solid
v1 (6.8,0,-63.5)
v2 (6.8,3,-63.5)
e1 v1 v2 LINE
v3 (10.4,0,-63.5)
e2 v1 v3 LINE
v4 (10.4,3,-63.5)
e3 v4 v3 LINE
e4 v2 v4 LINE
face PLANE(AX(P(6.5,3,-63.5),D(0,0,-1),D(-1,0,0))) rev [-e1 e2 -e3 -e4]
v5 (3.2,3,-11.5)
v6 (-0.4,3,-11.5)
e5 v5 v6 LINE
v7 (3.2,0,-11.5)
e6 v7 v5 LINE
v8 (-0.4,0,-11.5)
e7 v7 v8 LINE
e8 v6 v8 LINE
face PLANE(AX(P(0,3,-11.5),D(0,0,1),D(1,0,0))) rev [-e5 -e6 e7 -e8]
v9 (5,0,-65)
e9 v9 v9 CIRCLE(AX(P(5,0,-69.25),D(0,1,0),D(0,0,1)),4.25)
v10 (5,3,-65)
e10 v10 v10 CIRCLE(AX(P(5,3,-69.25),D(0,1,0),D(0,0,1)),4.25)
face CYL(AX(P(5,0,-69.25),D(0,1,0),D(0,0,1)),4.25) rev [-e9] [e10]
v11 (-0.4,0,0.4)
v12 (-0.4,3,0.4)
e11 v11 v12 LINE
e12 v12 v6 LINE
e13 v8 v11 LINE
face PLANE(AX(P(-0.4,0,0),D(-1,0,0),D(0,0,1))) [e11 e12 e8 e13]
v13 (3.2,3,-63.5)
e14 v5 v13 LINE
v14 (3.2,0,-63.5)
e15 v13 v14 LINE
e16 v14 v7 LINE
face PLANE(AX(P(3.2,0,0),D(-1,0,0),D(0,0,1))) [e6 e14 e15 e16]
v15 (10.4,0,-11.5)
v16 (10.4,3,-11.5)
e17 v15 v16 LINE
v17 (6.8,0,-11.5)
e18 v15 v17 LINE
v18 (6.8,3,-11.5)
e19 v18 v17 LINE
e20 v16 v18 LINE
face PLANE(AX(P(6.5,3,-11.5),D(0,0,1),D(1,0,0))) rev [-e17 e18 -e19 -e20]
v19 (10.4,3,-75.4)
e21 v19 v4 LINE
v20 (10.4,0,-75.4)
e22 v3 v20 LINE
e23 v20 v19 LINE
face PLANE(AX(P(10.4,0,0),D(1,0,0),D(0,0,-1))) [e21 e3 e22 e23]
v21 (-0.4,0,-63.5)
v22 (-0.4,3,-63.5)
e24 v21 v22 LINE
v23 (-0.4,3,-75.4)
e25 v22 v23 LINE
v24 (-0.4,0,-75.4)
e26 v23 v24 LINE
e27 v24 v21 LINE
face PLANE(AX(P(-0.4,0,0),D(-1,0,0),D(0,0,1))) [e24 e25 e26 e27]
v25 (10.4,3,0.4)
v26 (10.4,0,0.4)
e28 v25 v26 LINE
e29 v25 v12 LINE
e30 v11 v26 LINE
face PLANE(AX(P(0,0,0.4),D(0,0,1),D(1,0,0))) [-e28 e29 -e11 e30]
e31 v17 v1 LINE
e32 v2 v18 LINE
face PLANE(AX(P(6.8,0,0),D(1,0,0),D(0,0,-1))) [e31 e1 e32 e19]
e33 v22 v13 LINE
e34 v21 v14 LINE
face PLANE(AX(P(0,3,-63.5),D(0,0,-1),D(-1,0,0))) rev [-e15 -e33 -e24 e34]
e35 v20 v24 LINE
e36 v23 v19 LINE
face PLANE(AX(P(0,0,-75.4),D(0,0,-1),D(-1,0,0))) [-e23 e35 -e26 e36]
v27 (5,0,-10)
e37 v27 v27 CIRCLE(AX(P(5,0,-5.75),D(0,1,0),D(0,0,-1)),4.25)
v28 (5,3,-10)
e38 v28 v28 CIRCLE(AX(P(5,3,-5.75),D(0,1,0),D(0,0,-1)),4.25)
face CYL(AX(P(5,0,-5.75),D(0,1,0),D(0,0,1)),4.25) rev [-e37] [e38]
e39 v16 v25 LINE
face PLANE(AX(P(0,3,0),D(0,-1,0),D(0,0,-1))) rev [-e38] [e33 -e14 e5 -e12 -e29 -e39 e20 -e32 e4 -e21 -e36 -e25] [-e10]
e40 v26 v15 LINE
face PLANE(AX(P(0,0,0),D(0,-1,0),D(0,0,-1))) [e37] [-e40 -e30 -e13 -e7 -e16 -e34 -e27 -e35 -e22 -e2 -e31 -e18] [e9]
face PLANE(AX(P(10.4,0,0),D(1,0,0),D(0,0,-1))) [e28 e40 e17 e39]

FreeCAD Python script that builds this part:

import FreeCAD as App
import Part
import Sketcher
from FreeCAD import Vector

doc = App.newDocument("Part")
body = doc.addObject("PartDesign::Body", "Body")

sketch1 = doc.addObject("Sketcher::SketchObject", "Sketch")
body.addObject(sketch1)
sketch1.AttachmentSupport = (doc.XZ_Plane, [""])
sketch1.MapMode = "FlatFace"
sketch1.addGeometry(Part.LineSegment(Vector(3.5, -11.5, 0), Vector(0, -11.5, 0)), False)
sketch1.addGeometry(Part.LineSegment(Vector(0, -11.5, 0), Vector(0, 0, 0)), False)
sketch1.addGeometry(Part.LineSegment(Vector(0, 0, 0), Vector(10, 0, 0)), False)
sketch1.addGeometry(Part.LineSegment(Vector(10, 0, 0), Vector(10, -11.5, 0)), False)
sketch1.addGeometry(Part.LineSegment(Vector(10, -11.5, 0), Vector(6.5, -11.5, 0)), False)
sketch1.addGeometry(Part.LineSegment(Vector(6.5, -11.5, 0), Vector(6.5, -63.5, 0)), False)
sketch1.addGeometry(Part.LineSegment(Vector(6.5, -63.5, 0), Vector(10, -63.5, 0)), False)
sketch1.addGeometry(Part.LineSegment(Vector(10, -63.5, 0), Vector(10, -75, 0)), False)
sketch1.addGeometry(Part.LineSegment(Vector(10, -75, 0), Vector(0, -75, 0)), False)
sketch1.addGeometry(Part.LineSegment(Vector(0, -75, 0), Vector(0, -63.5, 0)), False)
sketch1.addGeometry(Part.LineSegment(Vector(0, -63.5, 0), Vector(3.5, -63.5, 0)), False)
sketch1.addGeometry(Part.LineSegment(Vector(3.5, -63.5, 0), Vector(3.5, -11.5, 0)), False)
sketch1.addConstraint(Sketcher.Constraint("Coincident", 0, 2, 1, 1))
sketch1.addConstraint(Sketcher.Constraint("Coincident", 1, 2, 2, 1))
sketch1.addConstraint(Sketcher.Constraint("Coincident", 2, 2, 3, 1))
sketch1.addConstraint(Sketcher.Constraint("Coincident", 3, 2, 4, 1))
sketch1.addConstraint(Sketcher.Constraint("Coincident", 4, 2, 5, 1))
sketch1.addConstraint(Sketcher.Constraint("Coincident", 5, 2, 6, 1))
sketch1.addConstraint(Sketcher.Constraint("Coincident", 6, 2, 7, 1))
sketch1.addConstraint(Sketcher.Constraint("Coincident", 7, 2, 8, 1))
sketch1.addConstraint(Sketcher.Constraint("Coincident", 8, 2, 9, 1))
sketch1.addConstraint(Sketcher.Constraint("Coincident", 9, 2, 10, 1))
sketch1.addConstraint(Sketcher.Constraint("Coincident", 10, 2, 11, 1))
sketch1.addConstraint(Sketcher.Constraint("Coincident", 11, 2, 0, 1))
sketch1.addConstraint(Sketcher.Constraint("Horizontal", 0))
sketch1.addConstraint(Sketcher.Constraint("Vertical", 1))
sketch1.addConstraint(Sketcher.Constraint("Horizontal", 2))
sketch1.addConstraint(Sketcher.Constraint("Vertical", 3))
sketch1.addConstraint(Sketcher.Constraint("Horizontal", 4))
sketch1.addConstraint(Sketcher.Constraint("Vertical", 5))
sketch1.addConstraint(Sketcher.Constraint("Horizontal", 6))
sketch1.addConstraint(Sketcher.Constraint("Vertical", 7))
sketch1.addConstraint(Sketcher.Constraint("Horizontal", 8))
sketch1.addConstraint(Sketcher.Constraint("Vertical", 9))
sketch1.addConstraint(Sketcher.Constraint("Horizontal", 10))
sketch1.addConstraint(Sketcher.Constraint("Vertical", 11))
sketch1.addConstraint(Sketcher.Constraint("Coincident", 1, 2, -1, 1))
sketch1.addConstraint(Sketcher.Constraint("PointOnObject", 8, 2, -2))
sketch1.addConstraint(Sketcher.Constraint("Horizontal", 0, 2, 3, 2))
sketch1.addConstraint(Sketcher.Constraint("Horizontal", 6, 2, 9, 2))
sketch1.addConstraint(Sketcher.Constraint("Vertical", 3, 2, 6, 2))
sketch1.addConstraint(Sketcher.Constraint("Equal", 0, 4))
sketch1.addConstraint(Sketcher.Constraint("Equal", 3, 7))
sketch1.addConstraint(Sketcher.Constraint("DistanceX", 2, 1, 2, 2, 10.0))
sketch1.addConstraint(Sketcher.Constraint("DistanceY", 5, 2, 5, 1, 52.0))
sketch1.addConstraint(Sketcher.Constraint("DistanceX", 0, 2, 0, 1, 3.5))
sketch1.addConstraint(Sketcher.Constraint("DistanceY", 1, 1, 1, 2, 11.5))
pad1 = doc.addObject("PartDesign::Pad", "Pad")
body.addObject(pad1)
pad1.Profile = sketch1
pad1.Length = 3
pad1.Reversed = True

sketch2 = doc.addObject("Sketcher::SketchObject", "Sketch001")
body.addObject(sketch2)
sketch2.AttachmentSupport = (doc.XZ_Plane, [""])
sketch2.MapMode = "FlatFace"
sketch2.AttachmentOffset = App.Placement(Vector(0, 0, -3), App.Rotation())
sketch2.addGeometry(Part.Circle(Vector(5, -69.2, 0), Vector(0, 0, 1), 4.2), False)
sketch2.addGeometry(Part.Circle(Vector(5, -5.8, 0), Vector(0, 0, 1), 4.2), False)
sketch2.addConstraint(Sketcher.Constraint("Equal", 0, 1))
sketch2.addConstraint(Sketcher.Constraint("Vertical", 0, 3, 1, 3))
sketch2.addConstraint(Sketcher.Constraint("Diameter", 0, 8.5))
sketch2.addConstraint(Sketcher.Constraint("DistanceX", -1, 1, 0, 3, 5.0))
sketch2.addConstraint(Sketcher.Constraint("DistanceY", 0, 3, 1, 3, 63.5))
sketch2.addConstraint(Sketcher.Constraint("DistanceY", 0, 3, -1, 1, 69.25))
pocket1 = doc.addObject("PartDesign::Pocket", "Pocket")
body.addObject(pocket1)
pocket1.Profile = sketch2
pocket1.Length = 3
pocket1.Reversed = True

sketch3 = doc.addObject("Sketcher::SketchObject", "Sketch002")
body.addObject(sketch3)
sketch3.AttachmentSupport = (doc.XY_Plane, [""])
sketch3.MapMode = "FlatFace"
sketch3.addGeometry(Part.LineSegment(Vector(0, 3, 0), Vector(0, 0, 0)), False)
sketch3.addGeometry(Part.LineSegment(Vector(0, 0, 0), Vector(10, 0, 0)), False)
sketch3.addGeometry(Part.LineSegment(Vector(10, 0, 0), Vector(10, 3, 0)), False)
sketch3.addGeometry(Part.LineSegment(Vector(10, 3, 0), Vector(0, 3, 0)), False)
sketch3.addConstraint(Sketcher.Constraint("Coincident", 0, 2, 1, 1))
sketch3.addConstraint(Sketcher.Constraint("Coincident", 1, 2, 2, 1))
sketch3.addConstraint(Sketcher.Constraint("Coincident", 2, 2, 3, 1))
sketch3.addConstraint(Sketcher.Constraint("Coincident", 3, 2, 0, 1))
sketch3.addConstraint(Sketcher.Constraint("Vertical", 0))
sketch3.addConstraint(Sketcher.Constraint("Horizontal", 1))
sketch3.addConstraint(Sketcher.Constraint("Vertical", 2))
sketch3.addConstraint(Sketcher.Constraint("Horizontal", 3))
sketch3.addConstraint(Sketcher.Constraint("Coincident", 0, 2, -1, 1))
sketch3.addConstraint(Sketcher.Constraint("DistanceX", 1, 1, 1, 2, 10.0))
sketch3.addConstraint(Sketcher.Constraint("DistanceY", 0, 2, 0, 1, 3.0))
pad2 = doc.addObject("PartDesign::Pad", "Pad001")
body.addObject(pad2)
pad2.Profile = sketch3
pad2.Length = 0.4

sketch4 = doc.addObject("Sketcher::SketchObject", "Sketch003")
body.addObject(sketch4)
sketch4.AttachmentSupport = (doc.XY_Plane, [""])
sketch4.MapMode = "FlatFace"
sketch4.AttachmentOffset = App.Placement(Vector(0, 0, -75), App.Rotation())
sketch4.addGeometry(Part.LineSegment(Vector(10, 3, 0), Vector(10, 0, 0)), False)
sketch4.addGeometry(Part.LineSegment(Vector(10, 0, 0), Vector(0, 0, 0)), False)
sketch4.addGeometry(Part.LineSegment(Vector(0, 0, 0), Vector(0, 3, 0)), False)
sketch4.addGeometry(Part.LineSegment(Vector(0, 3, 0), Vector(10, 3, 0)), False)
sketch4.addConstraint(Sketcher.Constraint("Coincident", 0, 2, 1, 1))
sketch4.addConstraint(Sketcher.Constraint("Coincident", 1, 2, 2, 1))
sketch4.addConstraint(Sketcher.Constraint("Coincident", 2, 2, 3, 1))
sketch4.addConstraint(Sketcher.Constraint("Coincident", 3, 2, 0, 1))
sketch4.addConstraint(Sketcher.Constraint("Vertical", 0))
sketch4.addConstraint(Sketcher.Constraint("Horizontal", 1))
sketch4.addConstraint(Sketcher.Constraint("Vertical", 2))
sketch4.addConstraint(Sketcher.Constraint("Horizontal", 3))
sketch4.addConstraint(Sketcher.Constraint("Coincident", 1, 2, -1, 1))
sketch4.addConstraint(Sketcher.Constraint("DistanceX", 1, 2, 1, 1, 10.0))
sketch4.addConstraint(Sketcher.Constraint("DistanceY", 0, 2, 0, 1, 3.0))
pad3 = doc.addObject("PartDesign::Pad", "Pad002")
body.addObject(pad3)
pad3.Profile = sketch4
pad3.Length = 0.4
pad3.Reversed = True

sketch5 = doc.addObject("Sketcher::SketchObject", "Sketch004")
body.addObject(sketch5)
sketch5.AttachmentSupport = (doc.YZ_Plane, [""])
sketch5.MapMode = "FlatFace"
sketch5.AttachmentOffset = App.Placement(Vector(0, 0, 10), App.Rotation())
sketch5.addGeometry(Part.LineSegment(Vector(3, -63.5, 0), Vector(0, -63.5, 0)), False)
sketch5.addGeometry(Part.LineSegment(Vector(0, -63.5, 0), Vector(0, -75.4, 0)), False)
sketch5.addGeometry(Part.LineSegment(Vector(0, -75.4, 0), Vector(3, -75.4, 0)), False)
sketch5.addGeometry(Part.LineSegment(Vector(3, -75.4, 0), Vector(3, -63.5, 0)), False)
sketch5.addGeometry(Part.LineSegment(Vector(3, 0.4, 0), Vector(0, 0.4, 0)), False)
sketch5.addGeometry(Part.LineSegment(Vector(0, 0.4, 0), Vector(0, -11.5, 0)), False)
sketch5.addGeometry(Part.LineSegment(Vector(0, -11.5, 0), Vector(3, -11.5, 0)), False)
sketch5.addGeometry(Part.LineSegment(Vector(3, -11.5, 0), Vector(3, 0.4, 0)), False)
sketch5.addConstraint(Sketcher.Constraint("Coincident", 0, 2, 1, 1))
sketch5.addConstraint(Sketcher.Constraint("Coincident", 1, 2, 2, 1))
sketch5.addConstraint(Sketcher.Constraint("Coincident", 2, 2, 3, 1))
sketch5.addConstraint(Sketcher.Constraint("Coincident", 3, 2, 0, 1))
sketch5.addConstraint(Sketcher.Constraint("Coincident", 4, 2, 5, 1))
sketch5.addConstraint(Sketcher.Constraint("Coincident", 5, 2, 6, 1))
sketch5.addConstraint(Sketcher.Constraint("Coincident", 6, 2, 7, 1))
sketch5.addConstraint(Sketcher.Constraint("Coincident", 7, 2, 4, 1))
sketch5.addConstraint(Sketcher.Constraint("Horizontal", 0))
sketch5.addConstraint(Sketcher.Constraint("Vertical", 1))
sketch5.addConstraint(Sketcher.Constraint("Horizontal", 2))
sketch5.addConstraint(Sketcher.Constraint("Vertical", 3))
sketch5.addConstraint(Sketcher.Constraint("Horizontal", 4))
sketch5.addConstraint(Sketcher.Constraint("Vertical", 5))
sketch5.addConstraint(Sketcher.Constraint("Horizontal", 6))
sketch5.addConstraint(Sketcher.Constraint("Vertical", 7))
sketch5.addConstraint(Sketcher.Constraint("PointOnObject", 0, 2, -2))
sketch5.addConstraint(Sketcher.Constraint("PointOnObject", 4, 2, -2))
sketch5.addConstraint(Sketcher.Constraint("Vertical", 3, 2, 6, 2))
sketch5.addConstraint(Sketcher.Constraint("Equal", 3, 5))
sketch5.addConstraint(Sketcher.Constraint("DistanceX", 0, 2, 0, 1, 3.0))
sketch5.addConstraint(Sketcher.Constraint("DistanceY", 1, 2, 1, 1, 11.9))
sketch5.addConstraint(Sketcher.Constraint("DistanceY", 0, 2, 5, 2, 52.0))
sketch5.addConstraint(Sketcher.Constraint("DistanceY", 0, 2, -1, 1, 63.5))
pad4 = doc.addObject("PartDesign::Pad", "Pad003")
body.addObject(pad4)
pad4.Profile = sketch5
pad4.Length = 0.4

sketch6 = doc.addObject("Sketcher::SketchObject", "Sketch005")
body.addObject(sketch6)
sketch6.AttachmentSupport = (doc.YZ_Plane, [""])
sketch6.MapMode = "FlatFace"
sketch6.AttachmentOffset = App.Placement(Vector(0, 0, 6.5), App.Rotation())
sketch6.addGeometry(Part.LineSegment(Vector(3, -11.5, 0), Vector(0, -11.5, 0)), False)
sketch6.addGeometry(Part.LineSegment(Vector(0, -11.5, 0), Vector(0, -63.5, 0)), False)
sketch6.addGeometry(Part.LineSegment(Vector(0, -63.5, 0), Vector(3, -63.5, 0)), False)
sketch6.addGeometry(Part.LineSegment(Vector(3, -63.5, 0), Vector(3, -11.5, 0)), False)
sketch6.addConstraint(Sketcher.Constraint("Coincident", 0, 2, 1, 1))
sketch6.addConstraint(Sketcher.Constraint("Coincident", 1, 2, 2, 1))
sketch6.addConstraint(Sketcher.Constraint("Coincident", 2, 2, 3, 1))
sketch6.addConstraint(Sketcher.Constraint("Coincident", 3, 2, 0, 1))
sketch6.addConstraint(Sketcher.Constraint("Horizontal", 0))
sketch6.addConstraint(Sketcher.Constraint("Vertical", 1))
sketch6.addConstraint(Sketcher.Constraint("Horizontal", 2))
sketch6.addConstraint(Sketcher.Constraint("Vertical", 3))
sketch6.addConstraint(Sketcher.Constraint("PointOnObject", 0, 2, -2))
sketch6.addConstraint(Sketcher.Constraint("DistanceX", 0, 2, 0, 1, 3.0))
sketch6.addConstraint(Sketcher.Constraint("DistanceY", 1, 2, 1, 1, 52.0))
sketch6.addConstraint(Sketcher.Constraint("DistanceY", 0, 2, -1, 1, 11.5))
pad5 = doc.addObject("PartDesign::Pad", "Pad004")
body.addObject(pad5)
pad5.Profile = sketch6
pad5.Length = 0.4

sketch7 = doc.addObject("Sketcher::SketchObject", "Sketch006")
body.addObject(sketch7)
sketch7.AttachmentSupport = (doc.YZ_Plane, [""])
sketch7.MapMode = "FlatFace"
sketch7.addGeometry(Part.LineSegment(Vector(3, -11.5, 0), Vector(0, -11.5, 0)), False)
sketch7.addGeometry(Part.LineSegment(Vector(0, -11.5, 0), Vector(0, 0.4, 0)), False)
sketch7.addGeometry(Part.LineSegment(Vector(0, 0.4, 0), Vector(3, 0.4, 0)), False)
sketch7.addGeometry(Part.LineSegment(Vector(3, 0.4, 0), Vector(3, -11.5, 0)), False)
sketch7.addGeometry(Part.LineSegment(Vector(3, -75.4, 0), Vector(0, -75.4, 0)), False)
sketch7.addGeometry(Part.LineSegment(Vector(0, -75.4, 0), Vector(0, -63.5, 0)), False)
sketch7.addGeometry(Part.LineSegment(Vector(0, -63.5, 0), Vector(3, -63.5, 0)), False)
sketch7.addGeometry(Part.LineSegment(Vector(3, -63.5, 0), Vector(3, -75.4, 0)), False)
sketch7.addConstraint(Sketcher.Constraint("Coincident", 0, 2, 1, 1))
sketch7.addConstraint(Sketcher.Constraint("Coincident", 1, 2, 2, 1))
sketch7.addConstraint(Sketcher.Constraint("Coincident", 2, 2, 3, 1))
sketch7.addConstraint(Sketcher.Constraint("Coincident", 3, 2, 0, 1))
sketch7.addConstraint(Sketcher.Constraint("Coincident", 4, 2, 5, 1))
sketch7.addConstraint(Sketcher.Constraint("Coincident", 5, 2, 6, 1))
sketch7.addConstraint(Sketcher.Constraint("Coincident", 6, 2, 7, 1))
sketch7.addConstraint(Sketcher.Constraint("Coincident", 7, 2, 4, 1))
sketch7.addConstraint(Sketcher.Constraint("Horizontal", 0))
sketch7.addConstraint(Sketcher.Constraint("Vertical", 1))
sketch7.addConstraint(Sketcher.Constraint("Horizontal", 2))
sketch7.addConstraint(Sketcher.Constraint("Vertical", 3))
sketch7.addConstraint(Sketcher.Constraint("Horizontal", 4))
sketch7.addConstraint(Sketcher.Constraint("Vertical", 5))
sketch7.addConstraint(Sketcher.Constraint("Horizontal", 6))
sketch7.addConstraint(Sketcher.Constraint("Vertical", 7))
sketch7.addConstraint(Sketcher.Constraint("PointOnObject", 0, 2, -2))
sketch7.addConstraint(Sketcher.Constraint("PointOnObject", 4, 2, -2))
sketch7.addConstraint(Sketcher.Constraint("Vertical", 3, 2, 6, 2))
sketch7.addConstraint(Sketcher.Constraint("Equal", 3, 5))
sketch7.addConstraint(Sketcher.Constraint("DistanceX", 0, 2, 0, 1, 3.0))
sketch7.addConstraint(Sketcher.Constraint("DistanceY", 1, 1, 1, 2, 11.9))
sketch7.addConstraint(Sketcher.Constraint("DistanceY", 5, 2, 0, 2, 52.0))
sketch7.addConstraint(Sketcher.Constraint("DistanceY", 0, 2, -1, 1, 11.5))
pad6 = doc.addObject("PartDesign::Pad", "Pad005")
body.addObject(pad6)
pad6.Profile = sketch7
pad6.Length = 0.4
pad6.Reversed = True

sketch8 = doc.addObject("Sketcher::SketchObject", "Sketch007")
body.addObject(sketch8)
sketch8.AttachmentSupport = (doc.YZ_Plane, [""])
sketch8.MapMode = "FlatFace"
sketch8.AttachmentOffset = App.Placement(Vector(0, 0, 3.5), App.Rotation())
sketch8.addGeometry(Part.LineSegment(Vector(3, -63.5, 0), Vector(0, -63.5, 0)), False)
sketch8.addGeometry(Part.LineSegment(Vector(0, -63.5, 0), Vector(0, -11.5, 0)), False)
sketch8.addGeometry(Part.LineSegment(Vector(0, -11.5, 0), Vector(3, -11.5, 0)), False)
sketch8.addGeometry(Part.LineSegment(Vector(3, -11.5, 0), Vector(3, -63.5, 0)), False)
sketch8.addConstraint(Sketcher.Constraint("Coincident", 0, 2, 1, 1))
sketch8.addConstraint(Sketcher.Constraint("Coincident", 1, 2, 2, 1))
sketch8.addConstraint(Sketcher.Constraint("Coincident", 2, 2, 3, 1))
sketch8.addConstraint(Sketcher.Constraint("Coincident", 3, 2, 0, 1))
sketch8.addConstraint(Sketcher.Constraint("Horizontal", 0))
sketch8.addConstraint(Sketcher.Constraint("Vertical", 1))
sketch8.addConstraint(Sketcher.Constraint("Horizontal", 2))
sketch8.addConstraint(Sketcher.Constraint("Vertical", 3))
sketch8.addConstraint(Sketcher.Constraint("PointOnObject", 0, 2, -2))
sketch8.addConstraint(Sketcher.Constraint("DistanceX", 0, 2, 0, 1, 3.0))
sketch8.addConstraint(Sketcher.Constraint("DistanceY", 1, 1, 1, 2, 52.0))
sketch8.addConstraint(Sketcher.Constraint("DistanceY", 0, 2, -1, 1, 63.5))
pad7 = doc.addObject("PartDesign::Pad", "Pad006")
body.addObject(pad7)
pad7.Profile = sketch8
pad7.Length = 0.4
pad7.Reversed = True

sketch9 = doc.addObject("Sketcher::SketchObject", "Sketch008")
body.addObject(sketch9)
sketch9.AttachmentSupport = (doc.YZ_Plane, [""])
sketch9.MapMode = "FlatFace"
sketch9.AttachmentOffset = App.Placement(Vector(0, 0, 3.1), App.Rotation())
sketch9.addGeometry(Part.LineSegment(Vector(3, -63.5, 0), Vector(0, -63.5, 0)), False)
sketch9.addGeometry(Part.LineSegment(Vector(0, -63.5, 0), Vector(0, -11.5, 0)), False)
sketch9.addGeometry(Part.LineSegment(Vector(0, -11.5, 0), Vector(3, -11.5, 0)), False)
sketch9.addGeometry(Part.LineSegment(Vector(3, -11.5, 0), Vector(3, -63.5, 0)), False)
sketch9.addConstraint(Sketcher.Constraint("Coincident", 0, 2, 1, 1))
sketch9.addConstraint(Sketcher.Constraint("Coincident", 1, 2, 2, 1))
sketch9.addConstraint(Sketcher.Constraint("Coincident", 2, 2, 3, 1))
sketch9.addConstraint(Sketcher.Constraint("Coincident", 3, 2, 0, 1))
sketch9.addConstraint(Sketcher.Constraint("Horizontal", 0))
sketch9.addConstraint(Sketcher.Constraint("Vertical", 1))
sketch9.addConstraint(Sketcher.Constraint("Horizontal", 2))
sketch9.addConstraint(Sketcher.Constraint("Vertical", 3))
sketch9.addConstraint(Sketcher.Constraint("PointOnObject", 0, 2, -2))
sketch9.addConstraint(Sketcher.Constraint("DistanceX", 0, 2, 0, 1, 3.0))
sketch9.addConstraint(Sketcher.Constraint("DistanceY", 1, 1, 1, 2, 52.0))
sketch9.addConstraint(Sketcher.Constraint("DistanceY", 0, 2, -1, 1, 63.5))
pocket2 = doc.addObject("PartDesign::Pocket", "Pocket001")
body.addObject(pocket2)
pocket2.Profile = sketch9
pocket2.Length = 0.1
pocket2.Reversed = True

sketch10 = doc.addObject("Sketcher::SketchObject", "Sketch009")
body.addObject(sketch10)
sketch10.AttachmentSupport = (doc.YZ_Plane, [""])
sketch10.MapMode = "FlatFace"
sketch10.AttachmentOffset = App.Placement(Vector(0, 0, 6.9), App.Rotation())
sketch10.addGeometry(Part.LineSegment(Vector(3, -11.5, 0), Vector(0, -11.5, 0)), False)
sketch10.addGeometry(Part.LineSegment(Vector(0, -11.5, 0), Vector(0, -63.5, 0)), False)
sketch10.addGeometry(Part.LineSegment(Vector(0, -63.5, 0), Vector(3, -63.5, 0)), False)
sketch10.addGeometry(Part.LineSegment(Vector(3, -63.5, 0), Vector(3, -11.5, 0)), False)
sketch10.addConstraint(Sketcher.Constraint("Coincident", 0, 2, 1, 1))
sketch10.addConstraint(Sketcher.Constraint("Coincident", 1, 2, 2, 1))
sketch10.addConstraint(Sketcher.Constraint("Coincident", 2, 2, 3, 1))
sketch10.addConstraint(Sketcher.Constraint("Coincident", 3, 2, 0, 1))
sketch10.addConstraint(Sketcher.Constraint("Horizontal", 0))
sketch10.addConstraint(Sketcher.Constraint("Vertical", 1))
sketch10.addConstraint(Sketcher.Constraint("Horizontal", 2))
sketch10.addConstraint(Sketcher.Constraint("Vertical", 3))
sketch10.addConstraint(Sketcher.Constraint("PointOnObject", 0, 2, -2))
sketch10.addConstraint(Sketcher.Constraint("DistanceX", 0, 2, 0, 1, 3.0))
sketch10.addConstraint(Sketcher.Constraint("DistanceY", 1, 2, 1, 1, 52.0))
sketch10.addConstraint(Sketcher.Constraint("DistanceY", 0, 2, -1, 1, 11.5))
pocket3 = doc.addObject("PartDesign::Pocket", "Pocket002")
body.addObject(pocket3)
pocket3.Profile = sketch10
pocket3.Length = 0.1

doc.recompute()
